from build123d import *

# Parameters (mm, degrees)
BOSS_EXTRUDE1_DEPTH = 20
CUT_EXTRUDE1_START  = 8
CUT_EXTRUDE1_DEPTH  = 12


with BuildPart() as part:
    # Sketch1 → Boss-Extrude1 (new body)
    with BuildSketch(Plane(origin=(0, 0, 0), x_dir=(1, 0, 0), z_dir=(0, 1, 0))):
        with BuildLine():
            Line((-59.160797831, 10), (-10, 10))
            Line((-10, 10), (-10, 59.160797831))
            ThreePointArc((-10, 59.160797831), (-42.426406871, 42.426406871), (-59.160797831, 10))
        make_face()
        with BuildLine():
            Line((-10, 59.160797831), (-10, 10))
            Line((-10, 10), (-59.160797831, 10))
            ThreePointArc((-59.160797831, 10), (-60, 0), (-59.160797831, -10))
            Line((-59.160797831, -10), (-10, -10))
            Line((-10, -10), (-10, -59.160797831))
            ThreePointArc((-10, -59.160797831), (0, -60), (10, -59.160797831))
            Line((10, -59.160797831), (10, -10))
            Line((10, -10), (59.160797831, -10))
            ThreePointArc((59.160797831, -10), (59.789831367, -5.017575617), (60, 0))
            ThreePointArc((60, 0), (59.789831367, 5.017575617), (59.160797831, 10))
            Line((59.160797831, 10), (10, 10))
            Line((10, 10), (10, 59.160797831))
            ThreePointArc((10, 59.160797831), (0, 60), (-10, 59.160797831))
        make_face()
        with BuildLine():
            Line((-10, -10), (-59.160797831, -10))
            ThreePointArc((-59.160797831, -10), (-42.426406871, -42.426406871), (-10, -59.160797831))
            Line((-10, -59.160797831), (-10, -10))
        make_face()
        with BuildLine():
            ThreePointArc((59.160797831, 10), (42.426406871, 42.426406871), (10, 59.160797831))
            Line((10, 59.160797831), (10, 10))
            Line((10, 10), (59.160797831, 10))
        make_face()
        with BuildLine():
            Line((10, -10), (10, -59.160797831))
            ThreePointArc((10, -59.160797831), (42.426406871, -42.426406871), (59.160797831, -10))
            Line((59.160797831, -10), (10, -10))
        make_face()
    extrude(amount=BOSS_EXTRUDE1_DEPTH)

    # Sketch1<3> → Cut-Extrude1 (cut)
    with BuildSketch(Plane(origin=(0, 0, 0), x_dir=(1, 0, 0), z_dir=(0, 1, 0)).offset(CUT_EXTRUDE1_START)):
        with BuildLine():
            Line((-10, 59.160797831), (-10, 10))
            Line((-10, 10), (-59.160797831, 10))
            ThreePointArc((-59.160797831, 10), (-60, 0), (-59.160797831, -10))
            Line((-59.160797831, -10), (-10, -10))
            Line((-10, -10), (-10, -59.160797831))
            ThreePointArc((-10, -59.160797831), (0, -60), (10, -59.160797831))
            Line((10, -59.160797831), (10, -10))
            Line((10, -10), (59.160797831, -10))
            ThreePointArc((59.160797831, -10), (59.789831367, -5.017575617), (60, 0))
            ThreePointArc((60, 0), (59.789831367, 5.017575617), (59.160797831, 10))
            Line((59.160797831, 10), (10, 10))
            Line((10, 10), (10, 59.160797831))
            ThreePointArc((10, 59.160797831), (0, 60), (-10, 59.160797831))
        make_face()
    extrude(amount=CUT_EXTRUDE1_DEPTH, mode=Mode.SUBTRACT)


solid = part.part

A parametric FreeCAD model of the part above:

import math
import FreeCAD as App
import Part
import Sketcher

doc = App.newDocument("Part")
body = doc.addObject("PartDesign::Body", "Body")

# Sketch on XZ plane
sketch1 = body.newObject("Sketcher::SketchObject", "Sketch")
sketch1.AttachmentSupport = (doc.getObject("XZ_Plane"), [""])
sketch1.MapMode = "FlatFace"
sketch1.addGeometry(Part.ArcOfCircle(Part.Circle(App.Vector(0, 0, 0), App.Vector(0, 0, 1), 60), math.radians(-170.405932), math.radians(-99.594068)), False)
sketch1.addGeometry(Part.ArcOfCircle(Part.Circle(App.Vector(0, 0, 0), App.Vector(0, 0, 1), 60), math.radians(170.405932), math.radians(189.594068)), False)
sketch1.addGeometry(Part.ArcOfCircle(Part.Circle(App.Vector(0, 0, 0), App.Vector(0, 0, 1), 60), math.radians(99.594068), math.radians(170.405932)), False)
sketch1.addGeometry(Part.ArcOfCircle(Part.Circle(App.Vector(0, 0, 0), App.Vector(0, 0, 1), 60), math.radians(80.405932), math.radians(99.594068)), False)
sketch1.addGeometry(Part.ArcOfCircle(Part.Circle(App.Vector(0, 0, 0), App.Vector(0, 0, 1), 60), math.radians(9.594068), math.radians(80.405932)), False)
sketch1.addGeometry(Part.ArcOfCircle(Part.Circle(App.Vector(0, 0, 0), App.Vector(0, 0, 1), 60), math.radians(0), math.radians(9.594068)), False)
sketch1.addGeometry(Part.ArcOfCircle(Part.Circle(App.Vector(0, 0, 0), App.Vector(0, 0, 1), 60), math.radians(-9.594068), math.radians(0)), False)
sketch1.addGeometry(Part.ArcOfCircle(Part.Circle(App.Vector(0, 0, 0), App.Vector(0, 0, 1), 60), math.radians(-80.405932), math.radians(-9.594068)), False)
sketch1.addGeometry(Part.ArcOfCircle(Part.Circle(App.Vector(0, 0, 0), App.Vector(0, 0, 1), 60), math.radians(-99.594068), math.radians(-80.405932)), False)
sketch1.addConstraint(Sketcher.Constraint("Tangent", 0, 1, 1, 2))
sketch1.addConstraint(Sketcher.Constraint("Tangent", 1, 1, 2, 2))
sketch1.addConstraint(Sketcher.Constraint("Tangent", 2, 1, 3, 2))
sketch1.addConstraint(Sketcher.Constraint("Tangent", 3, 1, 4, 2))
sketch1.addConstraint(Sketcher.Constraint("Tangent", 4, 1, 5, 2))
sketch1.addConstraint(Sketcher.Constraint("Tangent", 5, 1, 6, 2))
sketch1.addConstraint(Sketcher.Constraint("Tangent", 6, 1, 7, 2))
sketch1.addConstraint(Sketcher.Constraint("Tangent", 7, 1, 8, 2))
sketch1.addConstraint(Sketcher.Constraint("Tangent", 8, 1, 0, 2))
sketch1.addConstraint(Sketcher.Constraint("Coincident", 0, 3, -1, 1))
sketch1.addConstraint(Sketcher.Constraint("Coincident", 2, 3, -1, 1))
sketch1.addConstraint(Sketcher.Constraint("Coincident", 4, 3, -1, 1))
sketch1.addConstraint(Sketcher.Constraint("Coincident", 6, 3, -1, 1))
sketch1.addConstraint(Sketcher.Constraint("PointOnObject", 5, 1, -1))
sketch1.addConstraint(Sketcher.Constraint("Horizontal", 2, 1, 3, 1))
sketch1.addConstraint(Sketcher.Constraint("Horizontal", 1, 1, 4, 1))
sketch1.addConstraint(Sketcher.Constraint("Horizontal", 0, 1, 6, 1))
sketch1.addConstraint(Sketcher.Constraint("Horizontal", 7, 1, 8, 1))
sketch1.addConstraint(Sketcher.Constraint("Vertical", 0, 1, 1, 1))
sketch1.addConstraint(Sketcher.Constraint("Vertical", 3, 1, 7, 1))
sketch1.addConstraint(Sketcher.Constraint("Radius", 0, 60.0))
sketch1.addConstraint(Sketcher.Constraint("DistanceY", 0, 1, -1, 1, 10.0))
sketch1.addConstraint(Sketcher.Constraint("DistanceX", 2, 1, -1, 1, 10.0))
pad1 = body.newObject("PartDesign::Pad", "Pad")
pad1.Profile = sketch1
pad1.Length = 20
pad1.Reversed = True

# Sketch on XZ plane
sketch2 = body.newObject("Sketcher::SketchObject", "Sketch001")
sketch2.AttachmentSupport = (doc.getObject("XZ_Plane"), [""])
sketch2.MapMode = "FlatFace"
sketch2.AttachmentOffset = App.Placement(App.Vector(0, 0, -8), App.Rotation())
sketch2.addGeometry(Part.LineSegment(App.Vector(-10, -59.160798, 0), App.Vector(-10, -10, 0)), False)
sketch2.addGeometry(Part.LineSegment(App.Vector(-10, -10, 0), App.Vector(-59.160798, -10, 0)), False)
sketch2.addGeometry(Part.ArcOfCircle(Part.Circle(App.Vector(0, 0, 0), App.Vector(0, 0, 1), 60), math.radians(170.405932), math.radians(189.594068)), False)
sketch2.addGeometry(Part.LineSegment(App.Vector(-59.160798, 10, 0), App.Vector(-10, 10, 0)), False)
sketch2.addGeometry(Part.LineSegment(App.Vector(-10, 10, 0), App.Vector(-10, 59.160798, 0)), False)
sketch2.addGeometry(Part.ArcOfCircle(Part.Circle(App.Vector(0, 0, 0), App.Vector(0, 0, 1), 60), math.radians(80.405932), math.radians(99.594068)), False)
sketch2.addGeometry(Part.LineSegment(App.Vector(10, 59.160798, 0), App.Vector(10, 10, 0)), False)
sketch2.addGeometry(Part.LineSegment(App.Vector(10, 10, 0), App.Vector(59.160798, 10, 0)), False)
sketch2.addGeometry(Part.ArcOfCircle(Part.Circle(App.Vector(0, 0, 0), App.Vector(0, 0, 1), 60), math.radians(0), math.radians(9.594068)), False)
sketch2.addGeometry(Part.ArcOfCircle(Part.Circle(App.Vector(0, 0, 0), App.Vector(0, 0, 1), 60), math.radians(-9.594068), math.radians(0)), False)
sketch2.addGeometry(Part.LineSegment(App.Vector(59.160798, -10, 0), App.Vector(10, -10, 0)), False)
sketch2.addGeometry(Part.LineSegment(App.Vector(10, -10, 0), App.Vector(10, -59.160798, 0)), False)
sketch2.addGeometry(Part.ArcOfCircle(Part.Circle(App.Vector(0, 0, 0), App.Vector(0, 0, 1), 60), math.radians(-99.594068), math.radians(-80.405932)), False)
sketch2.addConstraint(Sketcher.Constraint("Coincident", 0, 2, 1, 1))
sketch2.addConstraint(Sketcher.Constraint("Coincident", 1, 2, 2, 2))
sketch2.addConstraint(Sketcher.Constraint("Coincident", 2, 1, 3, 1))
sketch2.addConstraint(Sketcher.Constraint("Coincident", 3, 2, 4, 1))
sketch2.addConstraint(Sketcher.Constraint("Coincident", 4, 2, 5, 2))
sketch2.addConstraint(Sketcher.Constraint("Coincident", 5, 1, 6, 1))
sketch2.addConstraint(Sketcher.Constraint("Coincident", 6, 2, 7, 1))
sketch2.addConstraint(Sketcher.Constraint("Coincident", 7, 2, 8, 2))
sketch2.addConstraint(Sketcher.Constraint("Tangent", 8, 1, 9, 2))
sketch2.addConstraint(Sketcher.Constraint("Coincident", 9, 1, 10, 1))
sketch2.addConstraint(Sketcher.Constraint("Coincident", 10, 2, 11, 1))
sketch2.addConstraint(Sketcher.Constraint("Coincident", 11, 2, 12, 2))
sketch2.addConstraint(Sketcher.Constraint("Coincident", 12, 1, 0, 1))
sketch2.addConstraint(Sketcher.Constraint("Vertical", 0))
sketch2.addConstraint(Sketcher.Constraint("Horizontal", 1))
sketch2.addConstraint(Sketcher.Constraint("Horizontal", 3))
sketch2.addConstraint(Sketcher.Constraint("Vertical", 4))
sketch2.addConstraint(Sketcher.Constraint("Vertical", 6))
sketch2.addConstraint(Sketcher.Constraint("Horizontal", 7))
sketch2.addConstraint(Sketcher.Constraint("Horizontal", 10))
sketch2.addConstraint(Sketcher.Constraint("Vertical", 11))
sketch2.addConstraint(Sketcher.Constraint("Coincident", 2, 3, -1, 1))
sketch2.addConstraint(Sketcher.Constraint("Coincident", 5, 3, -1, 1))
sketch2.addConstraint(Sketcher.Constraint("Coincident", 8, 3, -1, 1))
sketch2.addConstraint(Sketcher.Constraint("Coincident", 12, 3, -1, 1))
sketch2.addConstraint(Sketcher.Constraint("Equal", 2, 5))
sketch2.addConstraint(Sketcher.Constraint("Equal", 5, 8))
sketch2.addConstraint(Sketcher.Constraint("Equal", 8, 9))
sketch2.addConstraint(Sketcher.Constraint("Equal", 9, 12))
sketch2.addConstraint(Sketcher.Constraint("Symmetric", 0, 2, 6, 2, -1, 1))
sketch2.addConstraint(Sketcher.Constraint("Symmetric", 3, 2, 10, 2, -1, 1))
sketch2.addConstraint(Sketcher.Constraint("Symmetric", 3, 2, 6, 2, -2))
sketch2.addConstraint(Sketcher.Constraint("PointOnObject", 8, 1, -1))
sketch2.addConstraint(Sketcher.Constraint("Equal", 10, 0))
sketch2.addConstraint(Sketcher.Constraint("Radius", 2, 60.0))
sketch2.addConstraint(Sketcher.Constraint("DistanceX", 0, 2, -1, 1, 10.0))
pocket1 = body.newObject("PartDesign::Pocket", "Pocket")
pocket1.Profile = sketch2
pocket1.Length = 12

doc.recompute()
